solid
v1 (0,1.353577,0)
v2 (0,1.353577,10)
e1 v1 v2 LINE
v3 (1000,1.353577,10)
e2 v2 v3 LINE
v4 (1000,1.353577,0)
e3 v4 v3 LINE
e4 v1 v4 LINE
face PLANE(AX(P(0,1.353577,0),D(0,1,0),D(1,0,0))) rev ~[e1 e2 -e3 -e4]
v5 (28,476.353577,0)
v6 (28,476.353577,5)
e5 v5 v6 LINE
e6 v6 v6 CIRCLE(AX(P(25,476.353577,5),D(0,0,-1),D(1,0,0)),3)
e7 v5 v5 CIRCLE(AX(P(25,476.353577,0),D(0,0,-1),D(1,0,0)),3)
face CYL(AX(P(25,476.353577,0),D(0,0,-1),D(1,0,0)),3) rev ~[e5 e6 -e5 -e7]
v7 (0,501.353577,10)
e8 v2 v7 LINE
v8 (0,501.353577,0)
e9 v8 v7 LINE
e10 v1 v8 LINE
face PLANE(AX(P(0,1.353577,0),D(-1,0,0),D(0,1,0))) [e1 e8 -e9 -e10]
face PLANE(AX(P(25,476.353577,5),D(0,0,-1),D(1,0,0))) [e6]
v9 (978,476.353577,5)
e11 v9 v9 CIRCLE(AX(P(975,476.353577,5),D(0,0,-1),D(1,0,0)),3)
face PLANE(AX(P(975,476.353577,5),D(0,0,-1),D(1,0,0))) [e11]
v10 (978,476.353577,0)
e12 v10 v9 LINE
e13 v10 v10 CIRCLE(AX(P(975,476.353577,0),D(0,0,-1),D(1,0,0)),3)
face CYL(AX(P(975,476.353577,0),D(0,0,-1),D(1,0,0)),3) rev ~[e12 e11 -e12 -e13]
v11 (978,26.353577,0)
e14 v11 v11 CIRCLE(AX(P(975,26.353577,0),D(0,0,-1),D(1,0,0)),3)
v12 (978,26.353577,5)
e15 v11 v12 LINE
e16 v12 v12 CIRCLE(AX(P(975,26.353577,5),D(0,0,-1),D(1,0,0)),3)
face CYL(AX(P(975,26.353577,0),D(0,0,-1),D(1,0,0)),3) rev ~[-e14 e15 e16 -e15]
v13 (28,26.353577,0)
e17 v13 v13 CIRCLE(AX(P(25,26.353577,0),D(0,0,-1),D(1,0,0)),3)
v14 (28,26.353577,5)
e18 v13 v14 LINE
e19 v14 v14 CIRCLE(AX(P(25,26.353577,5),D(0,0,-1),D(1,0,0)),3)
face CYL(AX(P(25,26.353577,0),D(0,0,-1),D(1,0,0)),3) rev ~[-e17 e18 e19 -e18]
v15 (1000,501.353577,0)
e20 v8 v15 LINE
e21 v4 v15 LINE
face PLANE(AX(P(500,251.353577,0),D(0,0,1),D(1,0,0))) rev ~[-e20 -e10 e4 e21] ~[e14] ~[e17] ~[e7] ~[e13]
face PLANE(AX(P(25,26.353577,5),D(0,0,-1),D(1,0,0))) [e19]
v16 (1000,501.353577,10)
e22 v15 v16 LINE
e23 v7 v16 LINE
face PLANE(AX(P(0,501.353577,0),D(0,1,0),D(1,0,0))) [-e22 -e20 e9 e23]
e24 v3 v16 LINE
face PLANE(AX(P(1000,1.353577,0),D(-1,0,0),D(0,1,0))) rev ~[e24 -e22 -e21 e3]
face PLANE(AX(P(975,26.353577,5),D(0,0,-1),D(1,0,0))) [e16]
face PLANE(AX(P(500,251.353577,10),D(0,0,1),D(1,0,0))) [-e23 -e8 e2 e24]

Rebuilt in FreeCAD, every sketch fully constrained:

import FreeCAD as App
import Part
import Sketcher
from FreeCAD import Vector


def add_polygon(sketch, points):
    """Adds a closed chain of lines whose ends are joined by coincident constraints."""
    first, n = sketch.GeometryCount, len(points)
    for a, b in zip(points, points[1:] + points[:1]):
        sketch.addGeometry(Part.LineSegment(App.Vector(*a, 0), App.Vector(*b, 0)), False)
    for i in range(n):
        sketch.addConstraint(Sketcher.Constraint("Coincident", first + i, 2, first + (i + 1) % n, 1))

doc = App.newDocument("Part")
params = doc.addObject("Spreadsheet::Sheet", "Params")
for row, (alias, value) in enumerate([
    ("sketch1_width", "1000 mm"),
    ("sketch1_height", "500 mm"),
    ("pad1_length", "10 mm"),
    ("sketch2_diameter", "6 mm"),
    ("pocket1_length", "5 mm"),
    ("sketch3_diameter", "6 mm"),
    ("pocket2_length", "5 mm"),
    ("sketch4_diameter", "6 mm"),
    ("pocket3_length", "5 mm"),
], start=1):
    params.set(f"A{row}", alias)
    params.set(f"B{row}", "=" + value)
    params.setAlias(f"B{row}", alias)

body = doc.addObject("PartDesign::Body", "Body")

# Sketch on XY plane
sketch1 = body.newObject("Sketcher::SketchObject", "Sketch")
sketch1.AttachmentSupport = (doc.getObject("XY_Plane"), [""])
sketch1.MapMode = "FlatFace"
add_polygon(sketch1, [(0, 501), (0, 1), (1000, 1), (1000, 501)])  # lines 0-3
sketch1.addConstraint(Sketcher.Constraint("Vertical", 0))
sketch1.addConstraint(Sketcher.Constraint("Horizontal", 1))
sketch1.addConstraint(Sketcher.Constraint("Vertical", 2))
sketch1.addConstraint(Sketcher.Constraint("Horizontal", 3))
sketch1.addConstraint(Sketcher.Constraint("PointOnObject", 0, 2, -2))
sketch1.addConstraint(Sketcher.Constraint("DistanceX", 1, 1, 1, 2, 1000.0))
sketch1.addConstraint(Sketcher.Constraint("DistanceY", 0, 2, 0, 1, 500.0))
sketch1.addConstraint(Sketcher.Constraint("DistanceY", -1, 1, 0, 2, 1.353577))
sketch1.setExpression("Constraints[9]", "Params.sketch1_width")
sketch1.setExpression("Constraints[10]", "Params.sketch1_height")
pad1 = body.newObject("PartDesign::Pad", "Pad")
pad1.Profile = sketch1
pad1.setExpression("Length", "Params.pad1_length")

# Sketch on XY plane
sketch2 = body.newObject("Sketcher::SketchObject", "Sketch001")
sketch2.AttachmentSupport = (doc.getObject("XY_Plane"), [""])
sketch2.MapMode = "FlatFace"
sketch2.addGeometry(Part.Circle(Vector(25, 26.4, 0), Vector(0, 0, 1), 3), False)
sketch2.addConstraint(Sketcher.Constraint("Diameter", 0, 6.0))
sketch2.addConstraint(Sketcher.Constraint("DistanceX", -1, 1, 0, 3, 25.0))
sketch2.addConstraint(Sketcher.Constraint("DistanceY", -1, 1, 0, 3, 26.353577))
sketch2.setExpression("Constraints[0]", "Params.sketch2_diameter")
pocket1 = body.newObject("PartDesign::Pocket", "Pocket")
pocket1.Profile = sketch2
pocket1.setExpression("Length", "Params.pocket1_length")
pocket1.Reversed = True

# Sketch on XY plane
sketch3 = body.newObject("Sketcher::SketchObject", "Sketch002")
sketch3.AttachmentSupport = (doc.getObject("XY_Plane"), [""])
sketch3.MapMode = "FlatFace"
sketch3.addGeometry(Part.Circle(Vector(25, 476.4, 0), Vector(0, 0, 1), 3), False)
sketch3.addConstraint(Sketcher.Constraint("Diameter", 0, 6.0))
sketch3.addConstraint(Sketcher.Constraint("DistanceX", -1, 1, 0, 3, 25.0))
sketch3.addConstraint(Sketcher.Constraint("DistanceY", -1, 1, 0, 3, 476.353577))
sketch3.setExpression("Constraints[0]", "Params.sketch3_diameter")
pocket2 = body.newObject("PartDesign::Pocket", "Pocket001")
pocket2.Profile = sketch3
pocket2.setExpression("Length", "Params.pocket2_length")
pocket2.Reversed = True

# Sketch on XY plane
sketch4 = body.newObject("Sketcher::SketchObject", "Sketch003")
sketch4.AttachmentSupport = (doc.getObject("XY_Plane"), [""])
sketch4.MapMode = "FlatFace"
sketch4.addGeometry(Part.Circle(Vector(25, 26.4, 0), Vector(0, 0, 1), 3), False)
sketch4.addGeometry(Part.Circle(Vector(25, 476.4, 0), Vector(0, 0, 1), 3), False)
sketch4.addGeometry(Part.Circle(Vector(975, 26.4, 0), Vector(0, 0, 1), 3), False)
sketch4.addGeometry(Part.Circle(Vector(975, 476.4, 0), Vector(0, 0, 1), 3), False)
sketch4.addConstraint(Sketcher.Constraint("Equal", 0, 1))
sketch4.addConstraint(Sketcher.Constraint("Equal", 1, 2))
sketch4.addConstraint(Sketcher.Constraint("Equal", 2, 3))
sketch4.addConstraint(Sketcher.Constraint("Horizontal", 0, 3, 2, 3))
sketch4.addConstraint(Sketcher.Constraint("Horizontal", 1, 3, 3, 3))
sketch4.addConstraint(Sketcher.Constraint("Vertical", 0, 3, 1, 3))
sketch4.addConstraint(Sketcher.Constraint("Vertical", 2, 3, 3, 3))
sketch4.addConstraint(Sketcher.Constraint("Diameter", 0, 6.0))
sketch4.addConstraint(Sketcher.Constraint("DistanceX", -1, 1, 0, 3, 25.0))
sketch4.addConstraint(Sketcher.Constraint("DistanceX", -1, 1, 2, 3, 975.0))
sketch4.addConstraint(Sketcher.Constraint("DistanceY", 0, 3, 1, 3, 450.0))
sketch4.addConstraint(Sketcher.Constraint("DistanceY", -1, 1, 0, 3, 26.353577))
sketch4.setExpression("Constraints[7]", "Params.sketch4_diameter")
pocket3 = body.newObject("PartDesign::Pocket", "Pocket002")
pocket3.Profile = sketch4
pocket3.setExpression("Length", "Params.pocket3_length")
pocket3.Reversed = True

doc.recompute()
